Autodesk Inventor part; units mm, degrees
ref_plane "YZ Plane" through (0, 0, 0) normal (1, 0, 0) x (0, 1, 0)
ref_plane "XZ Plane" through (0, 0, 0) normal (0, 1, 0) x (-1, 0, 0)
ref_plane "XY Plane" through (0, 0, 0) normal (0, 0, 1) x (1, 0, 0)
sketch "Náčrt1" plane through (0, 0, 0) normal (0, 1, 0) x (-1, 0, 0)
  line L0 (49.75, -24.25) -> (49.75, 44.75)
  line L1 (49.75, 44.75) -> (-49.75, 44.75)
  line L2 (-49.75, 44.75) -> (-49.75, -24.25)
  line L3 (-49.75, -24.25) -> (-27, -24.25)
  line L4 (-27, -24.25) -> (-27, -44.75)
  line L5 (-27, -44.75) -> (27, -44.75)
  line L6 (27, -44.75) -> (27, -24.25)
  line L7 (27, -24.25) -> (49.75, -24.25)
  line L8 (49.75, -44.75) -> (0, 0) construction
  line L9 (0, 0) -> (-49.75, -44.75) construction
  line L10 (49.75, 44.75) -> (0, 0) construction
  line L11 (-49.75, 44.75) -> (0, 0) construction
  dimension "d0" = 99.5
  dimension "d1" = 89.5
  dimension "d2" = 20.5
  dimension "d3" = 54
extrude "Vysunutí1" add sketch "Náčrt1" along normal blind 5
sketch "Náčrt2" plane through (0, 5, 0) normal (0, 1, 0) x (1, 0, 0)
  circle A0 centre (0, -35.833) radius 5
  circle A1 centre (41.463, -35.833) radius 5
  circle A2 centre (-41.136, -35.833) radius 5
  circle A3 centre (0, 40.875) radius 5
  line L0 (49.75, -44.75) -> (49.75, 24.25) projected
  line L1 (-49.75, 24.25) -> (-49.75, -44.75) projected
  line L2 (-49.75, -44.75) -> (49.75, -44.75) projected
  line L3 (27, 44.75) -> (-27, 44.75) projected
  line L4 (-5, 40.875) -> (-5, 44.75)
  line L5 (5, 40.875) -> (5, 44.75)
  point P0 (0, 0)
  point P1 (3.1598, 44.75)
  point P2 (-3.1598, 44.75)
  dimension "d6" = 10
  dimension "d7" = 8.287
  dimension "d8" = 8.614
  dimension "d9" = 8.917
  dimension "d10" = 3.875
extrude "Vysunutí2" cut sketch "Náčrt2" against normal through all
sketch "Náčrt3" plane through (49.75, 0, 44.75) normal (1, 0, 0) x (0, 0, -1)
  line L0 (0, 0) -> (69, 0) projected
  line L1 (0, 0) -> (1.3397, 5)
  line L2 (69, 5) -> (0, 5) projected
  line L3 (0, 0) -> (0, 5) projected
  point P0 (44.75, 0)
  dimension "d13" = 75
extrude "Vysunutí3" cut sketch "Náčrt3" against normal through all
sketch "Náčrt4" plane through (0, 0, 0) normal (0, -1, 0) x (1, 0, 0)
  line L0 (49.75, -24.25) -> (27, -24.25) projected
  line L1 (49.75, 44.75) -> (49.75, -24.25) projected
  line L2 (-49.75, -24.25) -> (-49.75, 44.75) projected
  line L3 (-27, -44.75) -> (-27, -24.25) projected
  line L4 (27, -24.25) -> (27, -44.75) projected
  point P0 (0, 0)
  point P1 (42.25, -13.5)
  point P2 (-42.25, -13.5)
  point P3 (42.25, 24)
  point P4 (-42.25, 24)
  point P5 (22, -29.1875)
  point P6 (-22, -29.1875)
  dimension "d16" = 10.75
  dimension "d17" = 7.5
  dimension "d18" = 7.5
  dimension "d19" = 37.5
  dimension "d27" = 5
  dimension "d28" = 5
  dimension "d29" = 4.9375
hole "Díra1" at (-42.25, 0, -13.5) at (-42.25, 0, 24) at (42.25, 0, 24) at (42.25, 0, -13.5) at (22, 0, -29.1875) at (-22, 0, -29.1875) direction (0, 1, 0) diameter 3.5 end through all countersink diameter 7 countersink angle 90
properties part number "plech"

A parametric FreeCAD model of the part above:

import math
import FreeCAD as App
import Part
import Sketcher
from FreeCAD import Vector
Q = App.Units.Quantity

doc = App.newDocument("Part")
body = doc.addObject("PartDesign::Body", "Body")

sketch1 = body.newObject("Sketcher::SketchObject", "Sketch")
sketch1.AttachmentSupport = (doc.getObject("XZ_Plane"), [""])
sketch1.MapMode = "FlatFace"
sketch1.addGeometry([
    Part.LineSegment(Vector(-27, -24, 0), Vector(-50, -24, 0)),
    Part.LineSegment(Vector(-50, -24, 0), Vector(-50, 45, 0)),
    Part.LineSegment(Vector(-50, 45, 0), Vector(50, 45, 0)),
    Part.LineSegment(Vector(50, 45, 0), Vector(50, -24, 0)),
    Part.LineSegment(Vector(50, -24, 0), Vector(27, -24, 0)),
    Part.LineSegment(Vector(27, -24, 0), Vector(27, -45, 0)),
    Part.LineSegment(Vector(27, -45, 0), Vector(-27, -45, 0)),
    Part.LineSegment(Vector(-27, -45, 0), Vector(-27, -24, 0)),
], False)
sketch1.addConstraint([
    Sketcher.Constraint("Coincident", 0, 2, 1, 1),
    Sketcher.Constraint("Coincident", 1, 2, 2, 1),
    Sketcher.Constraint("Coincident", 2, 2, 3, 1),
    Sketcher.Constraint("Coincident", 3, 2, 4, 1),
    Sketcher.Constraint("Coincident", 4, 2, 5, 1),
    Sketcher.Constraint("Coincident", 5, 2, 6, 1),
    Sketcher.Constraint("Coincident", 6, 2, 7, 1),
    Sketcher.Constraint("Coincident", 7, 2, 0, 1),
    Sketcher.Constraint("Horizontal", 0),
    Sketcher.Constraint("Vertical", 1),
    Sketcher.Constraint("Horizontal", 2),
    Sketcher.Constraint("Vertical", 3),
    Sketcher.Constraint("Horizontal", 4),
    Sketcher.Constraint("Vertical", 5),
    Sketcher.Constraint("Horizontal", 6),
    Sketcher.Constraint("Vertical", 7),
    Sketcher.Constraint("Symmetric", 0, 2, 3, 2, -2),
    Sketcher.Constraint("Equal", 0, 4),
    Sketcher.Constraint("DistanceX", 6, 2, 6, 1, Q("54 mm")),
    Sketcher.Constraint("DistanceX", 2, 1, 2, 2, Q("99.5 mm")),
    Sketcher.Constraint("DistanceY", 5, 2, 5, 1, Q("20.5 mm")),
    Sketcher.Constraint("DistanceY", 5, 2, 2, 2, Q("89.5 mm")),
    Sketcher.Constraint("DistanceY", 0, 2, -1, 1, Q("24.25 mm")),
])
pad1 = body.newObject("PartDesign::Pad", "Pad")
pad1.Profile = sketch1
pad1.Length = 5
pad1.Reversed = True

sketch2 = body.newObject("Sketcher::SketchObject", "Sketch001")
sketch2.AttachmentSupport = (doc.getObject("XZ_Plane"), [""])
sketch2.MapMode = "FlatFace"
sketch2.AttachmentOffset = App.Placement(Vector(0, 0, -5), App.Rotation())
sketch2.addGeometry([
    Part.Circle(Vector(0, 35.8, 0), Vector(0, 0, 1), 5),
    Part.Circle(Vector(41.5, 35.8, 0), Vector(0, 0, 1), 5),
    Part.Circle(Vector(-41.1, 35.8, 0), Vector(0, 0, 1), 5),
    Part.ArcOfCircle(Part.Circle(Vector(0, -40.9, 0), Vector(0, 0, 1), 5), math.radians(0), math.radians(180)),
    Part.LineSegment(Vector(5, -40.9, 0), Vector(5, -44.8, 0)),
    Part.LineSegment(Vector(5, -44.8, 0), Vector(3.2, -44.8, 0)),
    Part.ArcOfCircle(Part.Circle(Vector(0, -40.9, 0), Vector(0, 0, 1), 5), math.radians(-129), math.radians(-51)),
    Part.LineSegment(Vector(-3.2, -44.8, 0), Vector(-5, -44.8, 0)),
    Part.LineSegment(Vector(-5, -44.8, 0), Vector(-5, -40.9, 0)),
], False)
sketch2.addConstraint([
    Sketcher.Constraint("Tangent", 3, 1, 4, 1),
    Sketcher.Constraint("Coincident", 4, 2, 5, 1),
    Sketcher.Constraint("Coincident", 5, 2, 6, 2),
    Sketcher.Constraint("Coincident", 6, 1, 7, 1),
    Sketcher.Constraint("Coincident", 7, 2, 8, 1),
    Sketcher.Constraint("Tangent", 8, 2, 3, 2),
    Sketcher.Constraint("Vertical", 4),
    Sketcher.Constraint("Horizontal", 5),
    Sketcher.Constraint("Horizontal", 7),
    Sketcher.Constraint("Vertical", 8),
    Sketcher.Constraint("Coincident", 6, 3, 3, 3),
    Sketcher.Constraint("Equal", 0, 1),
    Sketcher.Constraint("Equal", 1, 2),
    Sketcher.Constraint("Equal", 2, 3),
    Sketcher.Constraint("Equal", 3, 6),
    Sketcher.Constraint("Symmetric", 5, 2, 6, 1, -2),
    Sketcher.Constraint("PointOnObject", 0, 3, -2),
    Sketcher.Constraint("Horizontal", 0, 3, 1, 3),
    Sketcher.Constraint("Horizontal", 1, 3, 2, 3),
    Sketcher.Constraint("Diameter", 0, Q("10 mm")),
    Sketcher.Constraint("DistanceY", 4, 2, 4, 1, Q("3.875 mm")),
    Sketcher.Constraint("DistanceY", 4, 2, -1, 1, Q("44.75 mm")),
    Sketcher.Constraint("DistanceY", -1, 1, 0, 3, Q("35.833 mm")),
    Sketcher.Constraint("DistanceX", -1, 1, 1, 3, Q("41.463 mm")),
    Sketcher.Constraint("DistanceX", 2, 3, -1, 1, Q("41.136 mm")),
])
pocket1 = body.newObject("PartDesign::Pocket", "Pocket")
pocket1.Profile = sketch2
pocket1.Type = "ThroughAll"
pocket1.Reversed = True

sketch3 = body.newObject("Sketcher::SketchObject", "Sketch002")
sketch3.AttachmentSupport = (doc.getObject("YZ_Plane"), [""])
sketch3.MapMode = "FlatFace"
sketch3.AttachmentOffset = App.Placement(Vector(0, 0, 49.75), App.Rotation())
sketch3.addGeometry([
    Part.LineSegment(Vector(5, 44.8, 0), Vector(0, 44.8, 0)),
    Part.LineSegment(Vector(0, 44.8, 0), Vector(5, 43.4, 0)),
    Part.LineSegment(Vector(5, 43.4, 0), Vector(5, 44.8, 0)),
], False)
sketch3.addConstraint([
    Sketcher.Constraint("Coincident", 0, 2, 1, 1),
    Sketcher.Constraint("Coincident", 1, 2, 2, 1),
    Sketcher.Constraint("Coincident", 2, 2, 0, 1),
    Sketcher.Constraint("Horizontal", 0),
    Sketcher.Constraint("Vertical", 2),
    Sketcher.Constraint("PointOnObject", 0, 2, -2),
    Sketcher.Constraint("DistanceX", 0, 2, 0, 1, Q("5 mm")),
    Sketcher.Constraint("Angle", 1, Q("-14.9995 deg")),
    Sketcher.Constraint("DistanceY", -1, 1, 0, 2, Q("44.75 mm")),
])
pocket2 = body.newObject("PartDesign::Pocket", "Pocket001")
pocket2.Profile = sketch3
pocket2.Type = "ThroughAll"

sketch4 = body.newObject("Sketcher::SketchObject", "Sketch003")
sketch4.AttachmentSupport = (doc.getObject("XZ_Plane"), [""])
sketch4.MapMode = "FlatFace"
sketch4.addGeometry([
    Part.Circle(Vector(-42.2, -13.5, 0), Vector(0, 0, 1), 1.8),
    Part.Circle(Vector(-42.2, 24, 0), Vector(0, 0, 1), 1.8),
    Part.Circle(Vector(42.2, 24, 0), Vector(0, 0, 1), 1.8),
    Part.Circle(Vector(42.2, -13.5, 0), Vector(0, 0, 1), 1.8),
    Part.Circle(Vector(22, -29.2, 0), Vector(0, 0, 1), 1.8),
    Part.Circle(Vector(-22, -29.2, 0), Vector(0, 0, 1), 1.8),
], False)
sketch4.addConstraint([
    Sketcher.Constraint("Equal", 0, 1),
    Sketcher.Constraint("Equal", 1, 2),
    Sketcher.Constraint("Equal", 2, 3),
    Sketcher.Constraint("Equal", 3, 4),
    Sketcher.Constraint("Equal", 4, 5),
    Sketcher.Constraint("Symmetric", 1, 3, 2, 3, -2),
    Sketcher.Constraint("Symmetric", 0, 3, 3, 3, -2),
    Sketcher.Constraint("Symmetric", 4, 3, 5, 3, -2),
    Sketcher.Constraint("Vertical", 0, 3, 1, 3),
    Sketcher.Constraint("Diameter", 0, Q("3.5 mm")),
    Sketcher.Constraint("DistanceY", -1, 1, 1, 3, Q("24 mm")),
    Sketcher.Constraint("DistanceX", -1, 1, 4, 3, Q("22 mm")),
    Sketcher.Constraint("DistanceY", 0, 3, -1, 1, Q("13.5 mm")),
    Sketcher.Constraint("DistanceX", 1, 3, 2, 3, Q("84.5 mm")),
    Sketcher.Constraint("DistanceY", 4, 3, -1, 1, Q("29.1875 mm")),
])
doc.recompute()
hole = body.newObject("PartDesign::Hole", "Hole")
hole.Profile = sketch4
hole.ThreadType = "None"
hole.Diameter = 3.5
hole.DepthType = "ThroughAll"
hole.HoleCutType = "Countersink"
hole.HoleCutDiameter = 7
hole.HoleCutCountersinkAngle = 90

doc.recompute()
